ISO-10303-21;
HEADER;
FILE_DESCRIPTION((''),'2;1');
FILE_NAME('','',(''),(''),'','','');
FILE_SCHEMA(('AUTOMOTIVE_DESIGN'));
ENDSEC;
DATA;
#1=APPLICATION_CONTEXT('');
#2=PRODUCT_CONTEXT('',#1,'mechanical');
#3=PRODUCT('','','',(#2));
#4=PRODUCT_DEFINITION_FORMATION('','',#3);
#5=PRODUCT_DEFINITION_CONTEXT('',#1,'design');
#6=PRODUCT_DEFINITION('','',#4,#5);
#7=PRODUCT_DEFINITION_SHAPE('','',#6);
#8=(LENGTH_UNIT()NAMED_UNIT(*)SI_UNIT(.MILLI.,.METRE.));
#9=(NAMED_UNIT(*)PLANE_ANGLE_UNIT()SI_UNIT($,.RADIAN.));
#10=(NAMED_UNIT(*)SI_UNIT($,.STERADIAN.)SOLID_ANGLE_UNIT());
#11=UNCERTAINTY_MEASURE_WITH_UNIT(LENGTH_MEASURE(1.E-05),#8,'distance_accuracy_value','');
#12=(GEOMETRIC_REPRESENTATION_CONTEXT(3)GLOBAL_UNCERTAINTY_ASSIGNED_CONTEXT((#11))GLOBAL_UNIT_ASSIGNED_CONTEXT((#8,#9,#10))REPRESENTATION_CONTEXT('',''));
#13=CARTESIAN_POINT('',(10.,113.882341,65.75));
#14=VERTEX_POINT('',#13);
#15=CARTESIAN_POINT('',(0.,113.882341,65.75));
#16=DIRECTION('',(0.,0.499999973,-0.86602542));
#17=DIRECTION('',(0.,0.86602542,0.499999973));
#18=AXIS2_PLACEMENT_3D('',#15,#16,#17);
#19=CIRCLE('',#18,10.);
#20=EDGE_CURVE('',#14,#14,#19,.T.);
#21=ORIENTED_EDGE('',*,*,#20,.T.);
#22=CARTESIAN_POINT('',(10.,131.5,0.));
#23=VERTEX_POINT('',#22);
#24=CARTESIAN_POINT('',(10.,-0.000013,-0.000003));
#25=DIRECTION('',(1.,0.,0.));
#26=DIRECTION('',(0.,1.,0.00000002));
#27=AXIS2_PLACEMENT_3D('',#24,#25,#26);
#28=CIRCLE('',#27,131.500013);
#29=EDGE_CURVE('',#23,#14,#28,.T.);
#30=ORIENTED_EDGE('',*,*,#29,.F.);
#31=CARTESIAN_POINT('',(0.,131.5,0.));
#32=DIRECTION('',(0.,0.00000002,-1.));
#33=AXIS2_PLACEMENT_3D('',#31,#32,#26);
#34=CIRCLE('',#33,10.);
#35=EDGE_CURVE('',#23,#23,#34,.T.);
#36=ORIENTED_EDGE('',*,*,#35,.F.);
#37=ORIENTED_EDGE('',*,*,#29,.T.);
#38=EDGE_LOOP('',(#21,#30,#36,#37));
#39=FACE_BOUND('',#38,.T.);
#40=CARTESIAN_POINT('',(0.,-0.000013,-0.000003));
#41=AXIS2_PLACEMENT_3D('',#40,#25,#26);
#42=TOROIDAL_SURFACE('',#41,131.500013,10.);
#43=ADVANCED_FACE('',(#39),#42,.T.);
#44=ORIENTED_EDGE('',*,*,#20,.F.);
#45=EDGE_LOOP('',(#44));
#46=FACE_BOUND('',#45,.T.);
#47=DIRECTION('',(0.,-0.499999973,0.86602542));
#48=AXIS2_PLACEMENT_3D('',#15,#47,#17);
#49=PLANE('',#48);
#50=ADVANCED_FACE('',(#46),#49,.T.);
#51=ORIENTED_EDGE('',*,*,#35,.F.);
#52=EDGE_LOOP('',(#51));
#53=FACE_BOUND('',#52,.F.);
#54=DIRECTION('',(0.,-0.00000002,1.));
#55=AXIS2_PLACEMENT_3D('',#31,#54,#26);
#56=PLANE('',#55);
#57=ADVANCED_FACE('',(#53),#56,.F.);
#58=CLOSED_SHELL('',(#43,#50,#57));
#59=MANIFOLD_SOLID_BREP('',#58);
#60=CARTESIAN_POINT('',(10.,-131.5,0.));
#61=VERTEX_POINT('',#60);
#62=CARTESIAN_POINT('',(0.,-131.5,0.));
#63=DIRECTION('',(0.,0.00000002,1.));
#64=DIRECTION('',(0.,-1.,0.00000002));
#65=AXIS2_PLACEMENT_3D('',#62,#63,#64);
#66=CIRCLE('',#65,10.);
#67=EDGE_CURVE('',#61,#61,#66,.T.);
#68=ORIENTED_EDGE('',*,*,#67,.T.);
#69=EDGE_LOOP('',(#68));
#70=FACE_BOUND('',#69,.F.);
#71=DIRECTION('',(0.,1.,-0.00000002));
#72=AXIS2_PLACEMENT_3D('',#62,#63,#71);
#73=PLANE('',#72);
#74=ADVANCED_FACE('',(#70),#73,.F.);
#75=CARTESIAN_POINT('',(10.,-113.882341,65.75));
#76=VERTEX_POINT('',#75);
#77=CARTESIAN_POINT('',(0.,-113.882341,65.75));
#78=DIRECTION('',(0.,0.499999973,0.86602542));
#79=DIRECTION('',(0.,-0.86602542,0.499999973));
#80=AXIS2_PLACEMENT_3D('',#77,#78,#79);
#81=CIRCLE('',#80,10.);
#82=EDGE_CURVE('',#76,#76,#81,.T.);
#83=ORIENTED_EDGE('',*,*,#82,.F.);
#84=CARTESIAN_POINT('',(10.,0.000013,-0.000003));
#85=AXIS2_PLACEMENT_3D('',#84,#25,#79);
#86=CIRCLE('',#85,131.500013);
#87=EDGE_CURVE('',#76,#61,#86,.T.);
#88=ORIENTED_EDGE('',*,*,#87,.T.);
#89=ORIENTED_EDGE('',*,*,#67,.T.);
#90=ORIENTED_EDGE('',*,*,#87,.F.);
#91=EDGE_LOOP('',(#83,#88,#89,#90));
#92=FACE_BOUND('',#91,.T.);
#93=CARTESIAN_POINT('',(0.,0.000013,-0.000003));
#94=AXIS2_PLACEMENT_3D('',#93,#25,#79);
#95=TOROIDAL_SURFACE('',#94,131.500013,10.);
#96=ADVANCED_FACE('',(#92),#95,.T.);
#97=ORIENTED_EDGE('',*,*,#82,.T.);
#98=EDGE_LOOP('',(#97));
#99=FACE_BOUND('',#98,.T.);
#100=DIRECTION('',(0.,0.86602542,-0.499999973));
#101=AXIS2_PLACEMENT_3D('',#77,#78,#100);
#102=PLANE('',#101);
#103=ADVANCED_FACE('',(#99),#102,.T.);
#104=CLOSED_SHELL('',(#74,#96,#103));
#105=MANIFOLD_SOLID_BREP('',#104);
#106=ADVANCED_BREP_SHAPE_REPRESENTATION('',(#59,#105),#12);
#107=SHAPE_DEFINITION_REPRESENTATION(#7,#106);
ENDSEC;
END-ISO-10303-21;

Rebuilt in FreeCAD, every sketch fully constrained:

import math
import FreeCAD as App
import Part
import Sketcher

V = App.Vector

doc = App.newDocument("Part")
body = doc.addObject("PartDesign::Body", "Body")

# Sketch on XY plane
sketch1 = body.newObject("Sketcher::SketchObject", "Sketch")
sketch1.AttachmentSupport = (doc.getObject("XY_Plane"), [""])
sketch1.MapMode = "FlatFace"
sketch1.addGeometry(Part.Circle(V(0, -132, 0), V(0, 0, 1), 10), False)
sketch1.addConstraint(Sketcher.Constraint("PointOnObject", 0, 3, -2))
sketch1.addConstraint(Sketcher.Constraint("Diameter", 0, 20.0))
sketch1.addConstraint(Sketcher.Constraint("DistanceY", 0, 3, -1, 1, 131.5))

# Sketch on YZ plane
sketch2 = body.newObject("Sketcher::SketchObject", "Sketch001")
sketch2.AttachmentSupport = (doc.getObject("YZ_Plane"), [""])
sketch2.MapMode = "FlatFace"
sketch2.addGeometry(Part.ArcOfCircle(Part.Circle(V(0, 0, 0), V(0, 0, 1), 132), math.radians(150), math.radians(180)), False)
sketch2.addConstraint(Sketcher.Constraint("PointOnObject", 0, 2, -1))
sketch2.addConstraint(Sketcher.Constraint("DistanceX", 0, 2, -1, 1, 131.5))
sketch2.addConstraint(Sketcher.Constraint("DistanceY", -1, 1, 0, 1, 65.75))
sketch2.addConstraint(Sketcher.Constraint("Radius", 0, 131.500013))
sketch2.addConstraint(Sketcher.Constraint("DistanceX", 0, 1, -1, 1, 113.882341))
doc.recompute()

additivepipe = body.newObject("PartDesign::AdditivePipe", "AdditivePipe")
additivepipe.Profile = sketch1
additivepipe.Spine = (sketch2, ["Edge1"])
body2 = doc.addObject("PartDesign::Body", "Body001")

# Sketch on XY plane
sketch3 = body2.newObject("Sketcher::SketchObject", "Sketch002")
sketch3.AttachmentSupport = (doc.getObject("XY_Plane001"), [""])
sketch3.MapMode = "FlatFace"
sketch3.addGeometry(Part.Circle(V(0, 132, 0), V(0, 0, 1), 10), False)
sketch3.addConstraint(Sketcher.Constraint("PointOnObject", 0, 3, -2))
sketch3.addConstraint(Sketcher.Constraint("Diameter", 0, 20.0))
sketch3.addConstraint(Sketcher.Constraint("DistanceY", -1, 1, 0, 3, 131.5))

# Sketch on YZ plane
sketch4 = body2.newObject("Sketcher::SketchObject", "Sketch003")
sketch4.AttachmentSupport = (doc.getObject("YZ_Plane001"), [""])
sketch4.MapMode = "FlatFace"
sketch4.addGeometry(Part.ArcOfCircle(Part.Circle(V(0, 0, 0), V(0, 0, 1), 132), math.radians(0), math.radians(30)), False)
sketch4.addConstraint(Sketcher.Constraint("PointOnObject", 0, 1, -1))
sketch4.addConstraint(Sketcher.Constraint("DistanceX", -1, 1, 0, 1, 131.5))
sketch4.addConstraint(Sketcher.Constraint("DistanceY", -1, 1, 0, 2, 65.75))
sketch4.addConstraint(Sketcher.Constraint("Radius", 0, 131.500013))
sketch4.addConstraint(Sketcher.Constraint("DistanceX", -1, 1, 0, 2, 113.882341))
doc.recompute()

additivepipe2 = body2.newObject("PartDesign::AdditivePipe", "AdditivePipe001")
additivepipe2.Profile = sketch3
additivepipe2.Spine = (sketch4, ["Edge1"])

doc.recompute()
